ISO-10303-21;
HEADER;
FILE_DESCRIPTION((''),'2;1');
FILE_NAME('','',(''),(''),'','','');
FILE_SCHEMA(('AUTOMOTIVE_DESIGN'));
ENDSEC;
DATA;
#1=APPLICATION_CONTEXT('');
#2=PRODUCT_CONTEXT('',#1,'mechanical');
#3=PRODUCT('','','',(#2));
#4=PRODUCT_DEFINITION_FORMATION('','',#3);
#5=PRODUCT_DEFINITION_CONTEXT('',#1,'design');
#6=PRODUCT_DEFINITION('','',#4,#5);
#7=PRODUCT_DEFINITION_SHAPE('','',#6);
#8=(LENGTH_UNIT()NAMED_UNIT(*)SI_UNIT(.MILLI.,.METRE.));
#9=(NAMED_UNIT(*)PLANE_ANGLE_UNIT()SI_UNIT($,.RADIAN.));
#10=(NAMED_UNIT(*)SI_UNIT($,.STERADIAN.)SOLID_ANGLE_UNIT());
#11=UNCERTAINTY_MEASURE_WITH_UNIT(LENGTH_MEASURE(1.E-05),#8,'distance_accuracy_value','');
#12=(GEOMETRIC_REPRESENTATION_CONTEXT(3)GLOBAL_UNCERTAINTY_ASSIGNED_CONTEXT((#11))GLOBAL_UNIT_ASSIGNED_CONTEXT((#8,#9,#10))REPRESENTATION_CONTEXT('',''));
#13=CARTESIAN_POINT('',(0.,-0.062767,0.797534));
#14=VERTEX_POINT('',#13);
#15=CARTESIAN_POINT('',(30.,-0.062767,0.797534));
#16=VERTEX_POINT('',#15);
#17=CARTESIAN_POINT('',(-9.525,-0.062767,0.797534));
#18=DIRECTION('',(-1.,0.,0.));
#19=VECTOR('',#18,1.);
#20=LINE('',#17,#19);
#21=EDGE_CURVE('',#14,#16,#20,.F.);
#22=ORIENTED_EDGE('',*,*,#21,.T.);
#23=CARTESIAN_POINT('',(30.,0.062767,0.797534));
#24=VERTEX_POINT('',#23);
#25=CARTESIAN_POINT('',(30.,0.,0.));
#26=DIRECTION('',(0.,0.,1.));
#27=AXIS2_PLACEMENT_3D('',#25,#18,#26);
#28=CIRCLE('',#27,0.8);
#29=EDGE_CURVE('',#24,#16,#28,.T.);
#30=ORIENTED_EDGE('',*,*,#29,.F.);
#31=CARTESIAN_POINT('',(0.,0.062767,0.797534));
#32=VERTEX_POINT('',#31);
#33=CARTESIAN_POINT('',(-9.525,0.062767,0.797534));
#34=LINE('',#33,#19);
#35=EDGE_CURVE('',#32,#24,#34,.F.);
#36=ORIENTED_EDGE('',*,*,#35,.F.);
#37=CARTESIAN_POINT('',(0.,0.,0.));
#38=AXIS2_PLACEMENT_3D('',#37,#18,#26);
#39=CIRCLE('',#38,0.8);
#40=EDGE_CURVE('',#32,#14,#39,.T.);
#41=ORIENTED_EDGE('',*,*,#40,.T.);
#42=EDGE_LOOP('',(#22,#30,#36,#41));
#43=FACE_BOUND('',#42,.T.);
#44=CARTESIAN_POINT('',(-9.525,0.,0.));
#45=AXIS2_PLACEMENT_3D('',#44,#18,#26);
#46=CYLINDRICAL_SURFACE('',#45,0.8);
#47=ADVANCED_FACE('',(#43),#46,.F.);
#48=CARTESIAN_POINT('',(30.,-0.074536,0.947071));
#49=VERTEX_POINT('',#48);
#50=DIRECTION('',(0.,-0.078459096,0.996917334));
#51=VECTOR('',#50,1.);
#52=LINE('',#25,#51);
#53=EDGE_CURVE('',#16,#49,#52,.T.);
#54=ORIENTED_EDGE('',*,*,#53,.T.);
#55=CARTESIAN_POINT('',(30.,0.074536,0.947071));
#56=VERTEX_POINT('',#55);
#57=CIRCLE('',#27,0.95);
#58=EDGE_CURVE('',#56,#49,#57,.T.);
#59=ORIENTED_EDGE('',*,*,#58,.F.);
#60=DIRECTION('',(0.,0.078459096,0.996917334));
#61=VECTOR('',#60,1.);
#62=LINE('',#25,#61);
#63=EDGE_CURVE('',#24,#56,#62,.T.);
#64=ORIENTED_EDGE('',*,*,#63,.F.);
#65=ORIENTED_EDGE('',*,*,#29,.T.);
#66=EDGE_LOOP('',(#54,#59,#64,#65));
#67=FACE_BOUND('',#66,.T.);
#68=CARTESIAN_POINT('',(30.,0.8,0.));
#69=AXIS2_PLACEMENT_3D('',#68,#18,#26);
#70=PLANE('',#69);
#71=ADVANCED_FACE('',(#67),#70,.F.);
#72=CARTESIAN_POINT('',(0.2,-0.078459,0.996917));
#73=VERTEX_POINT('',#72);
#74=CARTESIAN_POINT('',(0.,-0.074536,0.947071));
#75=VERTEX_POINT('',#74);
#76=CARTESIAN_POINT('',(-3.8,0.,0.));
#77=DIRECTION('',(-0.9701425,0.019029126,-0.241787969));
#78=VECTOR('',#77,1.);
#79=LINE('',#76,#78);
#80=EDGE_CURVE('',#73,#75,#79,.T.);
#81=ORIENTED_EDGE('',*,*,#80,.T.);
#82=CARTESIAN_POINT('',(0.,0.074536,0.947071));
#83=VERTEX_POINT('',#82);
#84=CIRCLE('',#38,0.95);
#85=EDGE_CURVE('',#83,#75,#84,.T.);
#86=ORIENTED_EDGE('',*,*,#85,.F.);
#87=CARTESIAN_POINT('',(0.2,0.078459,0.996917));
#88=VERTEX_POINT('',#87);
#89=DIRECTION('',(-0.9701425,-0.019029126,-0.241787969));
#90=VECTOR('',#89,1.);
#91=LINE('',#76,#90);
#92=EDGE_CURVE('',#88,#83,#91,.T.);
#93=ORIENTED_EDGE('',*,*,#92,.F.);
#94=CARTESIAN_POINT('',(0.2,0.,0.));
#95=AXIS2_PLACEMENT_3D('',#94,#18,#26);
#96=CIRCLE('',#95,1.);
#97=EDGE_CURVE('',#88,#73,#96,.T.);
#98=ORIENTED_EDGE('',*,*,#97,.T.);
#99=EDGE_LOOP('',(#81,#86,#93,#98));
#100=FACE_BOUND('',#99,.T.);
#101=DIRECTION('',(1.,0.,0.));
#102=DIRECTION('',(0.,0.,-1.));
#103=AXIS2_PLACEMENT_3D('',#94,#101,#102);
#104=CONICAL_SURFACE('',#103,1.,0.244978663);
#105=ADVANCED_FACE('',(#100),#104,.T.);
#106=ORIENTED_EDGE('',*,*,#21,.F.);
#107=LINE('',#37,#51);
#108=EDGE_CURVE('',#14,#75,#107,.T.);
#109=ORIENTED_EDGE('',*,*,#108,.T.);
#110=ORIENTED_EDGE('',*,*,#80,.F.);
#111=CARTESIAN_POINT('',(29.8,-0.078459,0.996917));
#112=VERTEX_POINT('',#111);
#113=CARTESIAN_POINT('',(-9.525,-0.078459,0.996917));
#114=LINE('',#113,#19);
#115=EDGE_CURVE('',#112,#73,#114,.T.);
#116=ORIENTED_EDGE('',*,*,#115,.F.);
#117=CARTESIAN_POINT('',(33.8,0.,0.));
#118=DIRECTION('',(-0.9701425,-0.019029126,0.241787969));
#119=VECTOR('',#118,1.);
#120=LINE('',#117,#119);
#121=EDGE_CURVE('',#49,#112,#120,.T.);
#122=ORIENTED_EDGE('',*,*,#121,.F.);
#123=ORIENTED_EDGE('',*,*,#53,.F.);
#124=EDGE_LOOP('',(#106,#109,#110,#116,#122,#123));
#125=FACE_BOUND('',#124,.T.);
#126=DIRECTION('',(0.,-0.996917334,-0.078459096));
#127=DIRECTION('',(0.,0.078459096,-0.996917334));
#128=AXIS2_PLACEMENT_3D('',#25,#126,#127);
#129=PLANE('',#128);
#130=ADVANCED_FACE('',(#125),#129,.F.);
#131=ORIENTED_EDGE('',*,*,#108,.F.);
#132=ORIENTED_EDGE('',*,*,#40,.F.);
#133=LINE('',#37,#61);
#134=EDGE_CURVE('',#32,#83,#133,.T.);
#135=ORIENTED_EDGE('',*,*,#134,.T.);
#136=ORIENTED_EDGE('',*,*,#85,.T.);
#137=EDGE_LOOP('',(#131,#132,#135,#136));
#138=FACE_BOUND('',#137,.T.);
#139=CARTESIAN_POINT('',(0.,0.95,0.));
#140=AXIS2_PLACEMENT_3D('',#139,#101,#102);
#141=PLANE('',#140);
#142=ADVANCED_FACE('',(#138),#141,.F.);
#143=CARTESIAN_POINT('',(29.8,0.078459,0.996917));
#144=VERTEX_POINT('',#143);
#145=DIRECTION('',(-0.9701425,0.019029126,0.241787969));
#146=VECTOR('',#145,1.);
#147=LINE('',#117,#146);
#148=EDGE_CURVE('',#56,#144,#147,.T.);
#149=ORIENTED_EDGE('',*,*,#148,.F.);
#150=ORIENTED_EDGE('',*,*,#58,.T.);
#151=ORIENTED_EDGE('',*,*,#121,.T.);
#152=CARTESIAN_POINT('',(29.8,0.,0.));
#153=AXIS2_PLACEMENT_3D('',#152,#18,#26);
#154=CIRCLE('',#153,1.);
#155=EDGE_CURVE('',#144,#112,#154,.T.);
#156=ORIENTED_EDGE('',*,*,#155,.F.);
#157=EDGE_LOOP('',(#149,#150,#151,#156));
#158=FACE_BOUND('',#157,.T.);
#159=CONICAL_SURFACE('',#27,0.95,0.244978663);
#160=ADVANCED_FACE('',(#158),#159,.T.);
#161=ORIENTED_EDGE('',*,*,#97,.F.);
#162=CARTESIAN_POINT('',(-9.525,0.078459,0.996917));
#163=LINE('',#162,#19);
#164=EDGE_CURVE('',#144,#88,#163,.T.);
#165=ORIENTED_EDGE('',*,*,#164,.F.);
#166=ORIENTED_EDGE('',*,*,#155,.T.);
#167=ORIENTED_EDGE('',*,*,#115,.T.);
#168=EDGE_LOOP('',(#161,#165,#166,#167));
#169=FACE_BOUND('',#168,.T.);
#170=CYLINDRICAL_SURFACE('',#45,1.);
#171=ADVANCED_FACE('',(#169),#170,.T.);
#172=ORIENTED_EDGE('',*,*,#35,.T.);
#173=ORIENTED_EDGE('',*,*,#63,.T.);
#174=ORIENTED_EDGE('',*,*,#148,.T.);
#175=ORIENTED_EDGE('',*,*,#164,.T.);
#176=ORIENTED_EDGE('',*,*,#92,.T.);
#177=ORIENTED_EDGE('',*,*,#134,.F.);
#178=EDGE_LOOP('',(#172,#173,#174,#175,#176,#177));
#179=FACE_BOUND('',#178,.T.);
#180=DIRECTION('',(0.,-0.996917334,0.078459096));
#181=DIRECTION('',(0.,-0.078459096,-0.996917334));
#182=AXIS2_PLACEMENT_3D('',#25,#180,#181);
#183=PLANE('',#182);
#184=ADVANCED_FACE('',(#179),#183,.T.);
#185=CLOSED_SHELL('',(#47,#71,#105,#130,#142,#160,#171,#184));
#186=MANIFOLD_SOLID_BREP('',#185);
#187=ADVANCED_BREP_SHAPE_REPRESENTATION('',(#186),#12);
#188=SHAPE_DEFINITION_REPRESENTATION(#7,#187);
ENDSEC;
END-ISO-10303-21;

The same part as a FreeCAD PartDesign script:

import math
import FreeCAD as App
import Part
import Sketcher

V = App.Vector
Q = App.Units.Quantity

doc = App.newDocument("Part")
body = doc.addObject("PartDesign::Body", "Body")

# Sketch on XY plane
sketch1 = body.newObject("Sketcher::SketchObject", "Sketch")
sketch1.AttachmentSupport = (doc.getObject("XY_Plane"), [""])
sketch1.MapMode = "FlatFace"
sketch1.addGeometry(Part.LineSegment(V(0, 0.8, 0), V(30, 0.8, 0)), False)
sketch1.addGeometry(Part.LineSegment(V(30, 0.8, 0), V(30, 0.95, 0)), False)
sketch1.addGeometry(Part.LineSegment(V(30, 0.95, 0), V(29.8, 1, 0)), False)
sketch1.addGeometry(Part.LineSegment(V(29.8, 1, 0), V(0.2, 1, 0)), False)
sketch1.addGeometry(Part.LineSegment(V(0.2, 1, 0), V(0, 0.95, 0)), False)
sketch1.addGeometry(Part.LineSegment(V(0, 0.95, 0), V(0, 0.8, 0)), False)
sketch1.addConstraint(Sketcher.Constraint("Coincident", 0, 2, 1, 1))
sketch1.addConstraint(Sketcher.Constraint("Coincident", 1, 2, 2, 1))
sketch1.addConstraint(Sketcher.Constraint("Coincident", 2, 2, 3, 1))
sketch1.addConstraint(Sketcher.Constraint("Coincident", 3, 2, 4, 1))
sketch1.addConstraint(Sketcher.Constraint("Coincident", 4, 2, 5, 1))
sketch1.addConstraint(Sketcher.Constraint("Coincident", 5, 2, 0, 1))
sketch1.addConstraint(Sketcher.Constraint("Horizontal", 0))
sketch1.addConstraint(Sketcher.Constraint("Vertical", 1))
sketch1.addConstraint(Sketcher.Constraint("Horizontal", 3))
sketch1.addConstraint(Sketcher.Constraint("Vertical", 5))
sketch1.addConstraint(Sketcher.Constraint("PointOnObject", 4, 2, -2))
sketch1.addConstraint(Sketcher.Constraint("Horizontal", 1, 2, 4, 2))
sketch1.addConstraint(Sketcher.Constraint("Equal", 2, 4))
sketch1.addConstraint(Sketcher.Constraint("DistanceX", 0, 1, 0, 2, Q("30 mm")))
sketch1.addConstraint(Sketcher.Constraint("DistanceX", 3, 2, 3, 1, Q("29.6 mm")))
sketch1.addConstraint(Sketcher.Constraint("DistanceY", -1, 1, 2, 2, Q("1 mm")))
sketch1.addConstraint(Sketcher.Constraint("DistanceY", 1, 1, 1, 2, Q("0.15 mm")))
sketch1.addConstraint(Sketcher.Constraint("DistanceY", -1, 1, 0, 2, Q("0.8 mm")))
revolution = body.newObject("PartDesign::Revolution", "Revolution")
revolution.Profile = sketch1
revolution.ReferenceAxis = (sketch1, ["H_Axis"])
revolution.Angle = 360

# Sketch on YZ plane
sketch2 = body.newObject("Sketcher::SketchObject", "Sketch001")
sketch2.AttachmentSupport = (doc.getObject("YZ_Plane"), [""])
sketch2.MapMode = "FlatFace"
sketch2.addGeometry(Part.LineSegment(V(0, 0, 0), V(-0.08, 1.02, 0)), False)
sketch2.addGeometry(Part.ArcOfCircle(Part.Circle(V(0, 0, 0), V(0, 0, 1), 1.02), math.radians(85.5), math.radians(94.5)), False)
sketch2.addGeometry(Part.LineSegment(V(0.08, 1.02, 0), V(0, 0, 0)), False)
sketch2.addConstraint(Sketcher.Constraint("Coincident", 0, 2, 1, 2))
sketch2.addConstraint(Sketcher.Constraint("Coincident", 1, 1, 2, 1))
sketch2.addConstraint(Sketcher.Constraint("Coincident", 2, 2, 0, 1))
sketch2.addConstraint(Sketcher.Constraint("Coincident", 1, 3, -1, 1))
sketch2.addConstraint(Sketcher.Constraint("Coincident", 2, 2, -1, 1))
sketch2.addConstraint(Sketcher.Constraint("Horizontal", 0, 2, 1, 1))
sketch2.addConstraint(Sketcher.Constraint("Radius", 1, Q("1.02 mm")))
sketch2.addConstraint(Sketcher.Constraint("Angle", 0, Q("94.5 deg")))
pocket1 = body.newObject("PartDesign::Pocket", "Pocket")
pocket1.Profile = sketch2
pocket1.Type = "ThroughAll"
pocket1.Reversed = True

doc.recompute()
